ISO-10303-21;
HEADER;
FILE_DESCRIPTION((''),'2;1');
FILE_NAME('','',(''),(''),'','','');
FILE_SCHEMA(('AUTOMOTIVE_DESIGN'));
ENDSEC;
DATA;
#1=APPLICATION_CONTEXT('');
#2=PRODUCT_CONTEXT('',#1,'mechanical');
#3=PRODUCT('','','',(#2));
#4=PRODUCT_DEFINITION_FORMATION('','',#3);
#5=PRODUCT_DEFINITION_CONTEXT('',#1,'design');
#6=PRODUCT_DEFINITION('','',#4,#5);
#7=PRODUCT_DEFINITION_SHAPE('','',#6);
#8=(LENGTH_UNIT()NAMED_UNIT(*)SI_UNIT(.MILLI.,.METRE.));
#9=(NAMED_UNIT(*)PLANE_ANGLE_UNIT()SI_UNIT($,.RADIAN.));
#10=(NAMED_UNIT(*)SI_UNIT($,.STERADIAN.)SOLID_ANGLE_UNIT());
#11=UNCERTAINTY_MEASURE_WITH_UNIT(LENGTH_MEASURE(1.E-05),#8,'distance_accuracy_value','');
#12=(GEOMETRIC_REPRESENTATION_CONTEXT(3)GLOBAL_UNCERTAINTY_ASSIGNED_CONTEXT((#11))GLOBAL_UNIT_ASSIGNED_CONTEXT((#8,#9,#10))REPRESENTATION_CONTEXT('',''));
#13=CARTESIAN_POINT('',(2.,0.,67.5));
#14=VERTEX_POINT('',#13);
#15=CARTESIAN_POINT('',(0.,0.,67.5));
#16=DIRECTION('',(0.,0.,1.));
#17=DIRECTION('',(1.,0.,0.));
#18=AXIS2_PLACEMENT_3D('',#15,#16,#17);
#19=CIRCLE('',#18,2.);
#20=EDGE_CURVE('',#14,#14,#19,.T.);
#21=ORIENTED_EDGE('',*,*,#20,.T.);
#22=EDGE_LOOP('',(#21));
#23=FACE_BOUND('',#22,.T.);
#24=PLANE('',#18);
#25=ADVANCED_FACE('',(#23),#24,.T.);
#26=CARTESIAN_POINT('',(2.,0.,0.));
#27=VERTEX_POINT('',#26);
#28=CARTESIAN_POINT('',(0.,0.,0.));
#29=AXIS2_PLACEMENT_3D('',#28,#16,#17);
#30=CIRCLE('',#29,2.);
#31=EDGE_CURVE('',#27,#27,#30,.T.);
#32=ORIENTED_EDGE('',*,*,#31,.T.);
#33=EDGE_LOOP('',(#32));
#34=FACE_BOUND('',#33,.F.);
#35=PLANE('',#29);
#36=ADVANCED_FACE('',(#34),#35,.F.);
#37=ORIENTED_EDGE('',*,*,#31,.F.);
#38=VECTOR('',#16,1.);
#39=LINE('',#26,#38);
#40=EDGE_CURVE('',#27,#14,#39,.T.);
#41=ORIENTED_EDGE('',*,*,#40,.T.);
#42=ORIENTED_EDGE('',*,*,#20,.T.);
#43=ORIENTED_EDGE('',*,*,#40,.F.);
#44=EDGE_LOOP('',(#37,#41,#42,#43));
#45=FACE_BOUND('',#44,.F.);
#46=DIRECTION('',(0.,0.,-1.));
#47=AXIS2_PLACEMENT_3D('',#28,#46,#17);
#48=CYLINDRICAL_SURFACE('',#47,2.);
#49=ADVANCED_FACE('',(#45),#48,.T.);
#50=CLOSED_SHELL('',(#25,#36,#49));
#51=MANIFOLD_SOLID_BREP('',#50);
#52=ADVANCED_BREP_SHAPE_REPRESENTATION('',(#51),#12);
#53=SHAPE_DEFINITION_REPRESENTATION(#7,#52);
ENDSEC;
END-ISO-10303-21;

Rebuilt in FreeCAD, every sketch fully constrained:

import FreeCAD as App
import Part
import Sketcher
Q = App.Units.Quantity

doc = App.newDocument("Part")
params = doc.addObject("Spreadsheet::Sheet", "Params")
for row, (alias, value) in enumerate([
    ("sketch1_diameter", "4 mm"),
    ("pad1_length", "67.5 mm"),
], start=1):
    params.set(f"A{row}", alias)
    params.set(f"B{row}", "=" + value)
    params.setAlias(f"B{row}", alias)

body = doc.addObject("PartDesign::Body", "Body")

# Sketch on XY plane
sketch1 = doc.addObject("Sketcher::SketchObject", "Sketch")
body.addObject(sketch1)
sketch1.AttachmentSupport = (doc.XY_Plane, [""])
sketch1.MapMode = "FlatFace"
sketch1.addGeometry(Part.Circle(App.Vector(0, 0, 0), App.Vector(0, 0, 1), 2), False)
sketch1.addConstraint([
    Sketcher.Constraint("Coincident", 0, 3, -1, 1),
    Sketcher.Constraint("Diameter", 0, Q("4 mm")),
])
sketch1.setExpression("Constraints[1]", "Params.sketch1_diameter")
pad1 = doc.addObject("PartDesign::Pad", "Pad")
body.addObject(pad1)
pad1.Profile = sketch1
pad1.setExpression("Length", "Params.pad1_length")

doc.recompute()
